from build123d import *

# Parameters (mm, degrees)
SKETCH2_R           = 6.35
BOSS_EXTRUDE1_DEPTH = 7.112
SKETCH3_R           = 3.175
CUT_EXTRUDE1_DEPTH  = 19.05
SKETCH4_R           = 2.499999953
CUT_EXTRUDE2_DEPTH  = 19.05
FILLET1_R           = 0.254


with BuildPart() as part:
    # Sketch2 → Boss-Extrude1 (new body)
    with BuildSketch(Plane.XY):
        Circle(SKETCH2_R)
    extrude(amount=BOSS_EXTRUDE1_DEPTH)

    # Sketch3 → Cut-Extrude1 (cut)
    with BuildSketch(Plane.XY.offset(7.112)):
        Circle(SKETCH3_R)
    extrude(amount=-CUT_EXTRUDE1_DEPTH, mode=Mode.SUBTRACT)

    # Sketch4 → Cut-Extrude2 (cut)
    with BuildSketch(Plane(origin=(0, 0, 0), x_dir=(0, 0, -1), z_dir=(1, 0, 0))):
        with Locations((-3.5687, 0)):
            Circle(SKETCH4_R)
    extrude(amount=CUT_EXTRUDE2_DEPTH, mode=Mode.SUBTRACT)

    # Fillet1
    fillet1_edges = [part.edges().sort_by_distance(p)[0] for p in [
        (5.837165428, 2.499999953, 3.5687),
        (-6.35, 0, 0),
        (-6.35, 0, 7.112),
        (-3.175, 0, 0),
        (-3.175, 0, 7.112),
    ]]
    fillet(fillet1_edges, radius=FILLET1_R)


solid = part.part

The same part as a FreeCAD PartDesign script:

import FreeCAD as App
import Part
import Sketcher
from FreeCAD import Vector
Q = App.Units.Quantity


def edges_at(feature, points):
    """Names of the edges that pass closest to the given points."""
    edges = feature.Shape.Edges
    near = lambda p: min(range(len(edges)), key=lambda i: edges[i].distToShape(Part.Vertex(*p))[0])
    return sorted({f"Edge{near(p) + 1}" for p in points})

doc = App.newDocument("Part")
body = doc.addObject("PartDesign::Body", "Body")

sketch1 = doc.addObject("Sketcher::SketchObject", "Sketch")
body.addObject(sketch1)
sketch1.AttachmentSupport = (doc.XY_Plane, [""])
sketch1.MapMode = "FlatFace"
sketch1.addGeometry(Part.Circle(Vector(0, 0, 0), Vector(0, 0, 1), 6), False)
sketch1.addConstraint([
    Sketcher.Constraint("Coincident", 0, 3, -1, 1),
    Sketcher.Constraint("Diameter", 0, Q("0.5 in")),
])
pad1 = doc.addObject("PartDesign::Pad", "Pad")
body.addObject(pad1)
pad1.Profile = sketch1
pad1.Length = Q("0.28 in")

sketch2 = doc.addObject("Sketcher::SketchObject", "Sketch001")
body.addObject(sketch2)
sketch2.AttachmentSupport = (doc.XY_Plane, [""])
sketch2.MapMode = "FlatFace"
sketch2.AttachmentOffset = App.Placement(Vector(0, 0, 0.28 * 25.4), App.Rotation())
sketch2.addGeometry(Part.Circle(Vector(0, 0, 0), Vector(0, 0, 1), 3.2), False)
sketch2.addConstraint([
    Sketcher.Constraint("Coincident", 0, 3, -1, 1),
    Sketcher.Constraint("Diameter", 0, Q("0.25 in")),
])
pocket1 = doc.addObject("PartDesign::Pocket", "Pocket")
body.addObject(pocket1)
pocket1.Profile = sketch2
pocket1.Length = Q("0.75 in")

sketch3 = doc.addObject("Sketcher::SketchObject", "Sketch002")
body.addObject(sketch3)
sketch3.AttachmentSupport = (doc.YZ_Plane, [""])
sketch3.MapMode = "FlatFace"
sketch3.addGeometry(Part.Circle(Vector(0, 3.6, 0), Vector(0, 0, 1), 2.5), False)
sketch3.addConstraint([
    Sketcher.Constraint("PointOnObject", 0, 3, -2),
    Sketcher.Constraint("Diameter", 0, Q("5 mm")),
    Sketcher.Constraint("DistanceY", -1, 1, 0, 3, Q("0.1405 in")),
])
pocket2 = doc.addObject("PartDesign::Pocket", "Pocket001")
body.addObject(pocket2)
pocket2.Profile = sketch3
pocket2.Length = Q("0.75 in")
pocket2.Reversed = True
doc.recompute()

fillet = doc.addObject("PartDesign::Fillet", "Fillet")
body.addObject(fillet)
fillet.Base = (pocket2, edges_at(pocket2, [
    (5.837, 2.5, 3.569),
    (-6.35, 0, 0),
    (-6.35, 0, 7.112),
    (-3.175, 0, 0),
    (-3.175, 0, 7.112),
]))
fillet.Radius = Q("0.01 in")

doc.recompute()
